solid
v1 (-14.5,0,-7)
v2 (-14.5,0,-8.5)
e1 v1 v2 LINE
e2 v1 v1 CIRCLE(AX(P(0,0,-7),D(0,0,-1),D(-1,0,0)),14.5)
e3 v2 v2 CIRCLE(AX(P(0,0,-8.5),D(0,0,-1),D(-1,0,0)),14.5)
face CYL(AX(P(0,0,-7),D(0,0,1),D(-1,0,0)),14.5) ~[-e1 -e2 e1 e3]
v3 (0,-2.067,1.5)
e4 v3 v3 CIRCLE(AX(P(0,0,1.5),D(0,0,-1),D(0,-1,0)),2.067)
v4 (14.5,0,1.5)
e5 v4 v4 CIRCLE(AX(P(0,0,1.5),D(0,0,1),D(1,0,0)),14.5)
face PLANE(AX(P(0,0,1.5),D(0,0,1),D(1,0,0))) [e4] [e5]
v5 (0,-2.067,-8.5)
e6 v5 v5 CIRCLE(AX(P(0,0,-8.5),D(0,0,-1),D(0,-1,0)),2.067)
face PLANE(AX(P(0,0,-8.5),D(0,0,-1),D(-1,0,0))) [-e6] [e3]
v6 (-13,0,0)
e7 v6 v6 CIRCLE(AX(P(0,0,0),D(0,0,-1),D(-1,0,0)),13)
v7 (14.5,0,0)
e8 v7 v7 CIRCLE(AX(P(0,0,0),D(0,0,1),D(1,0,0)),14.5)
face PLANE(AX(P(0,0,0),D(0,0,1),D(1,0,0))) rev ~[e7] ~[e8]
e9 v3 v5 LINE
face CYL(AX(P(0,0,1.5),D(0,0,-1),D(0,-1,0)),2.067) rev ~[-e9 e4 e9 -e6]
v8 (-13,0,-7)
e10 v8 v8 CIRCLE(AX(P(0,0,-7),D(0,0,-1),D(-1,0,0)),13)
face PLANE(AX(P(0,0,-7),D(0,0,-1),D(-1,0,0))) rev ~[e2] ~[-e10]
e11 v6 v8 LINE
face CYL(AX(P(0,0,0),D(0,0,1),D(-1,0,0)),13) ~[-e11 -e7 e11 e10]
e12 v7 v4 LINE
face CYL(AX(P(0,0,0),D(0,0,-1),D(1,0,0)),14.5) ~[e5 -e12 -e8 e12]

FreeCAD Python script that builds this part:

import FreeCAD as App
import Part
import Sketcher

doc = App.newDocument("Part")
body = doc.addObject("PartDesign::Body", "Body")

# Sketch on XY plane
sketch1 = doc.addObject("Sketcher::SketchObject", "Sketch")
body.addObject(sketch1)
sketch1.AttachmentSupport = (doc.XY_Plane, [""])
sketch1.MapMode = "FlatFace"
sketch1.addGeometry(Part.Circle(App.Vector(0, 0, 0), App.Vector(0, 0, 1), 14), False)
sketch1.addConstraint([
    Sketcher.Constraint("Coincident", 0, 3, -1, 1),
    Sketcher.Constraint("Diameter", 0, 29.0),
])
pad1 = doc.addObject("PartDesign::Pad", "Pad")
body.addObject(pad1)
pad1.Profile = sketch1
pad1.Length = 1.5

# Sketch on XY plane
sketch2 = doc.addObject("Sketcher::SketchObject", "Sketch001")
body.addObject(sketch2)
sketch2.AttachmentSupport = (doc.XY_Plane, [""])
sketch2.MapMode = "FlatFace"
sketch2.addGeometry(Part.Circle(App.Vector(0, 0, 0), App.Vector(0, 0, 1), 13), False)
sketch2.addConstraint([
    Sketcher.Constraint("Coincident", 0, 3, -1, 1),
    Sketcher.Constraint("Diameter", 0, 26.0),
])
pad2 = doc.addObject("PartDesign::Pad", "Pad001")
body.addObject(pad2)
pad2.Profile = sketch2
pad2.Length = 7
pad2.Reversed = True

# Sketch on XY plane
sketch3 = doc.addObject("Sketcher::SketchObject", "Sketch002")
body.addObject(sketch3)
sketch3.AttachmentSupport = (doc.XY_Plane, [""])
sketch3.MapMode = "FlatFace"
sketch3.AttachmentOffset = App.Placement(App.Vector(0, 0, -7), App.Rotation())
sketch3.addGeometry(Part.Circle(App.Vector(0, 0, 0), App.Vector(0, 0, 1), 14), False)
sketch3.addConstraint([
    Sketcher.Constraint("Coincident", 0, 3, -1, 1),
    Sketcher.Constraint("Diameter", 0, 29.0),
])
pad3 = doc.addObject("PartDesign::Pad", "Pad002")
body.addObject(pad3)
pad3.Profile = sketch3
pad3.Length = 1.5
pad3.Reversed = True

# Sketch on XY plane
sketch4 = doc.addObject("Sketcher::SketchObject", "Sketch003")
body.addObject(sketch4)
sketch4.AttachmentSupport = (doc.XY_Plane, [""])
sketch4.MapMode = "FlatFace"
sketch4.AttachmentOffset = App.Placement(App.Vector(0, 0, 1.5), App.Rotation())
sketch4.addGeometry(Part.Circle(App.Vector(0, 0, 0), App.Vector(0, 0, 1), 2.1), False)
sketch4.addConstraint([
    Sketcher.Constraint("Coincident", 0, 3, -1, 1),
    Sketcher.Constraint("Diameter", 0, 4.134),
])
doc.recompute()
hole = doc.addObject("PartDesign::Hole", "Hole")
body.addObject(hole)
hole.Profile = sketch4
hole.ThreadType = "None"
hole.Diameter = 4.134
hole.DepthType = "ThroughAll"

doc.recompute()
